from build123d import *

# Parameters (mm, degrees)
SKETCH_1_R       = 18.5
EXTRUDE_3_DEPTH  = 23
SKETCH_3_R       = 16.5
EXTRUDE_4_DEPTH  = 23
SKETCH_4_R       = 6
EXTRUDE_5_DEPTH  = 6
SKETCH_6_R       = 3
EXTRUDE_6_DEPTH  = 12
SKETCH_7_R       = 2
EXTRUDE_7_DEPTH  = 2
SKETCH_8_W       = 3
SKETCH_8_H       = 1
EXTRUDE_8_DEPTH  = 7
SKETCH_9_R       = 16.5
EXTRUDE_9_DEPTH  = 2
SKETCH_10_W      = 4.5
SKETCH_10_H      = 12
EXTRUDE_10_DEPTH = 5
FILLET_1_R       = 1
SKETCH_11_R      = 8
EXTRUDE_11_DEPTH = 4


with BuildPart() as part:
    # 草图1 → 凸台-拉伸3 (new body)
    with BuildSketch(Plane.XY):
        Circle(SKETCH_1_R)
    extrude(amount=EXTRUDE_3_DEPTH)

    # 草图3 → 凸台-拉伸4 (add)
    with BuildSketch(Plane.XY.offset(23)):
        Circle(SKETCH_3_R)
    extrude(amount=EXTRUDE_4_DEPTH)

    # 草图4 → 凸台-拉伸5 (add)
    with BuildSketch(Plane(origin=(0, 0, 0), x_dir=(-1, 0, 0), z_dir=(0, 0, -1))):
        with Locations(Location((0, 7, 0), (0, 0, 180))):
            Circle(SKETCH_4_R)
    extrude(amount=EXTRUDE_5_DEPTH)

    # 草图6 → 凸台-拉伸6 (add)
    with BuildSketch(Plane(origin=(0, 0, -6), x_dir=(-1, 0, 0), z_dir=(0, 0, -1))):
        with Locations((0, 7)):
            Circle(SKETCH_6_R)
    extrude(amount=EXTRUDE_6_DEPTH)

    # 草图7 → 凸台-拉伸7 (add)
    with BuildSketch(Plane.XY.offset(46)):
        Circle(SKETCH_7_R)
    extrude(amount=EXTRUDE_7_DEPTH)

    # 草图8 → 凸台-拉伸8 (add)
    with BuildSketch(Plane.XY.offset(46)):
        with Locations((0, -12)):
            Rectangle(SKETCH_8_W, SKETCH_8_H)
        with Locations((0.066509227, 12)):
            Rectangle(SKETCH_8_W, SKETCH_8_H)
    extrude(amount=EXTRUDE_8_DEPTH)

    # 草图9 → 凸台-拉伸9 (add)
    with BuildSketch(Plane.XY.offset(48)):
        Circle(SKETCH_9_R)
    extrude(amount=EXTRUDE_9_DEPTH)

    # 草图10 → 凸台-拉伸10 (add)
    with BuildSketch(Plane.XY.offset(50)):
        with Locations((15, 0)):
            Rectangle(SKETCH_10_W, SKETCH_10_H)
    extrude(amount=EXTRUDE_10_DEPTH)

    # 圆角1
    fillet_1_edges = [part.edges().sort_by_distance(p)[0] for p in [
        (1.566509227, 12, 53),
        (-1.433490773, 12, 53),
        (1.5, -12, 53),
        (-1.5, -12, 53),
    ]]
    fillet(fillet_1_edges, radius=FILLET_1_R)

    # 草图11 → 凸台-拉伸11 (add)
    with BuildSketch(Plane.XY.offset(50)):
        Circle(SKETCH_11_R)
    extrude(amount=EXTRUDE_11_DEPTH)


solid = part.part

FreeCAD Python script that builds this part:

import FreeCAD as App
import Part
import Sketcher


def edges_at(feature, points):
    """Names of the edges that pass closest to the given points."""
    edges = feature.Shape.Edges
    near = lambda p: min(range(len(edges)), key=lambda i: edges[i].distToShape(Part.Vertex(*p))[0])
    return sorted({f"Edge{near(p) + 1}" for p in points})

doc = App.newDocument("Part")
body = doc.addObject("PartDesign::Body", "Body")

# Sketch on XY plane
sketch1 = doc.addObject("Sketcher::SketchObject", "Sketch")
body.addObject(sketch1)
sketch1.AttachmentSupport = (doc.XY_Plane, [""])
sketch1.MapMode = "FlatFace"
sketch1.addGeometry(Part.Circle(App.Vector(0, 0, 0), App.Vector(0, 0, 1), 18), False)
sketch1.addConstraint([
    Sketcher.Constraint("Coincident", 0, 3, -1, 1),
    Sketcher.Constraint("Diameter", 0, 37.0),
])
pad1 = doc.addObject("PartDesign::Pad", "Pad")
body.addObject(pad1)
pad1.Profile = sketch1
pad1.Length = 23

# Sketch on XY plane
sketch2 = doc.addObject("Sketcher::SketchObject", "Sketch001")
body.addObject(sketch2)
sketch2.AttachmentSupport = (doc.XY_Plane, [""])
sketch2.MapMode = "FlatFace"
sketch2.AttachmentOffset = App.Placement(App.Vector(0, 0, 23), App.Rotation())
sketch2.addGeometry(Part.Circle(App.Vector(0, 0, 0), App.Vector(0, 0, 1), 16), False)
sketch2.addConstraint([
    Sketcher.Constraint("Coincident", 0, 3, -1, 1),
    Sketcher.Constraint("Diameter", 0, 33.0),
])
pad2 = doc.addObject("PartDesign::Pad", "Pad001")
body.addObject(pad2)
pad2.Profile = sketch2
pad2.Length = 23

# Sketch on XY plane
sketch3 = doc.addObject("Sketcher::SketchObject", "Sketch002")
body.addObject(sketch3)
sketch3.AttachmentSupport = (doc.XY_Plane, [""])
sketch3.MapMode = "FlatFace"
sketch3.addGeometry(Part.Circle(App.Vector(0, 7, 0), App.Vector(0, 0, 1), 6), False)
sketch3.addConstraint([
    Sketcher.Constraint("PointOnObject", 0, 3, -2),
    Sketcher.Constraint("Diameter", 0, 12.0),
    Sketcher.Constraint("DistanceY", -1, 1, 0, 3, 7.0),
])
pad3 = doc.addObject("PartDesign::Pad", "Pad002")
body.addObject(pad3)
pad3.Profile = sketch3
pad3.Length = 6
pad3.Reversed = True

# Sketch on XY plane
sketch4 = doc.addObject("Sketcher::SketchObject", "Sketch003")
body.addObject(sketch4)
sketch4.AttachmentSupport = (doc.XY_Plane, [""])
sketch4.MapMode = "FlatFace"
sketch4.AttachmentOffset = App.Placement(App.Vector(0, 0, -6), App.Rotation())
sketch4.addGeometry(Part.Circle(App.Vector(0, 7, 0), App.Vector(0, 0, 1), 3), False)
sketch4.addConstraint([
    Sketcher.Constraint("PointOnObject", 0, 3, -2),
    Sketcher.Constraint("Diameter", 0, 6.0),
    Sketcher.Constraint("DistanceY", -1, 1, 0, 3, 7.0),
])
pad4 = doc.addObject("PartDesign::Pad", "Pad003")
body.addObject(pad4)
pad4.Profile = sketch4
pad4.Length = 12
pad4.Reversed = True

# Sketch on XY plane
sketch5 = doc.addObject("Sketcher::SketchObject", "Sketch004")
body.addObject(sketch5)
sketch5.AttachmentSupport = (doc.XY_Plane, [""])
sketch5.MapMode = "FlatFace"
sketch5.AttachmentOffset = App.Placement(App.Vector(0, 0, 46), App.Rotation())
sketch5.addGeometry(Part.Circle(App.Vector(0, 0, 0), App.Vector(0, 0, 1), 2), False)
sketch5.addConstraint([
    Sketcher.Constraint("Coincident", 0, 3, -1, 1),
    Sketcher.Constraint("Diameter", 0, 4.0),
])
pad5 = doc.addObject("PartDesign::Pad", "Pad004")
body.addObject(pad5)
pad5.Profile = sketch5
pad5.Length = 2

# Sketch on XY plane
sketch6 = doc.addObject("Sketcher::SketchObject", "Sketch005")
body.addObject(sketch6)
sketch6.AttachmentSupport = (doc.XY_Plane, [""])
sketch6.MapMode = "FlatFace"
sketch6.AttachmentOffset = App.Placement(App.Vector(0, 0, 46), App.Rotation())
sketch6.addGeometry([
    Part.LineSegment(App.Vector(-1.5, -11.5, 0), App.Vector(-1.5, -12.5, 0)),  # 0
    Part.LineSegment(App.Vector(-1.5, -12.5, 0), App.Vector(1.5, -12.5, 0)),  # 1
    Part.LineSegment(App.Vector(1.5, -12.5, 0), App.Vector(1.5, -11.5, 0)),  # 2
    Part.LineSegment(App.Vector(1.5, -11.5, 0), App.Vector(-1.5, -11.5, 0)),  # 3
    Part.LineSegment(App.Vector(-1.4, 12.5, 0), App.Vector(-1.4, 11.5, 0)),  # 4
    Part.LineSegment(App.Vector(-1.4, 11.5, 0), App.Vector(1.6, 11.5, 0)),  # 5
    Part.LineSegment(App.Vector(1.6, 11.5, 0), App.Vector(1.6, 12.5, 0)),  # 6
    Part.LineSegment(App.Vector(1.6, 12.5, 0), App.Vector(-1.4, 12.5, 0)),  # 7
], False)
sketch6.addConstraint([
    Sketcher.Constraint("Coincident", 0, 2, 1, 1),
    Sketcher.Constraint("Coincident", 1, 2, 2, 1),
    Sketcher.Constraint("Coincident", 2, 2, 3, 1),
    Sketcher.Constraint("Coincident", 3, 2, 0, 1),
    Sketcher.Constraint("Coincident", 4, 2, 5, 1),
    Sketcher.Constraint("Coincident", 5, 2, 6, 1),
    Sketcher.Constraint("Coincident", 6, 2, 7, 1),
    Sketcher.Constraint("Coincident", 7, 2, 4, 1),
    Sketcher.Constraint("Vertical", 0),
    Sketcher.Constraint("Horizontal", 1),
    Sketcher.Constraint("Vertical", 2),
    Sketcher.Constraint("Horizontal", 3),
    Sketcher.Constraint("Vertical", 4),
    Sketcher.Constraint("Horizontal", 5),
    Sketcher.Constraint("Vertical", 6),
    Sketcher.Constraint("Horizontal", 7),
    Sketcher.Constraint("Equal", 3, 5),
    Sketcher.Constraint("Equal", 2, 4),
    Sketcher.Constraint("DistanceX", 1, 1, 1, 2, 3.0),
    Sketcher.Constraint("DistanceY", 0, 2, 0, 1, 1.0),
    Sketcher.Constraint("DistanceY", 3, 2, 4, 2, 23.0),
    Sketcher.Constraint("DistanceX", 0, 2, -1, 1, 1.5),
    Sketcher.Constraint("DistanceY", 0, 2, -1, 1, 12.5),
    Sketcher.Constraint("DistanceX", 4, 2, -1, 1, 1.433491),
])
pad6 = doc.addObject("PartDesign::Pad", "Pad005")
body.addObject(pad6)
pad6.Profile = sketch6
pad6.Length = 7

# Sketch on XY plane
sketch7 = doc.addObject("Sketcher::SketchObject", "Sketch006")
body.addObject(sketch7)
sketch7.AttachmentSupport = (doc.XY_Plane, [""])
sketch7.MapMode = "FlatFace"
sketch7.AttachmentOffset = App.Placement(App.Vector(0, 0, 48), App.Rotation())
sketch7.addGeometry(Part.Circle(App.Vector(0, 0, 0), App.Vector(0, 0, 1), 16), False)
sketch7.addConstraint([
    Sketcher.Constraint("Coincident", 0, 3, -1, 1),
    Sketcher.Constraint("Diameter", 0, 33.0),
])
pad7 = doc.addObject("PartDesign::Pad", "Pad006")
body.addObject(pad7)
pad7.Profile = sketch7
pad7.Length = 2

# Sketch on XY plane
sketch8 = doc.addObject("Sketcher::SketchObject", "Sketch007")
body.addObject(sketch8)
sketch8.AttachmentSupport = (doc.XY_Plane, [""])
sketch8.MapMode = "FlatFace"
sketch8.AttachmentOffset = App.Placement(App.Vector(0, 0, 50), App.Rotation())
sketch8.addGeometry([
    Part.LineSegment(App.Vector(12.8, 6, 0), App.Vector(12.8, -6, 0)),
    Part.LineSegment(App.Vector(12.8, -6, 0), App.Vector(17.2, -6, 0)),
    Part.LineSegment(App.Vector(17.2, -6, 0), App.Vector(17.2, 6, 0)),
    Part.LineSegment(App.Vector(17.2, 6, 0), App.Vector(12.8, 6, 0)),
], False)
sketch8.addConstraint([
    Sketcher.Constraint("Coincident", 0, 2, 1, 1),
    Sketcher.Constraint("Coincident", 1, 2, 2, 1),
    Sketcher.Constraint("Coincident", 2, 2, 3, 1),
    Sketcher.Constraint("Coincident", 3, 2, 0, 1),
    Sketcher.Constraint("Vertical", 0),
    Sketcher.Constraint("Horizontal", 1),
    Sketcher.Constraint("Vertical", 2),
    Sketcher.Constraint("Horizontal", 3),
    Sketcher.Constraint("DistanceY", 0, 2, 0, 1, 12.0),
    Sketcher.Constraint("DistanceX", 1, 1, 1, 2, 4.5),
    Sketcher.Constraint("DistanceY", 0, 2, -1, 1, 6.0),
    Sketcher.Constraint("DistanceX", -1, 1, 0, 2, 12.75),
])
pad8 = doc.addObject("PartDesign::Pad", "Pad007")
body.addObject(pad8)
pad8.Profile = sketch8
pad8.Length = 5
doc.recompute()

fillet = doc.addObject("PartDesign::Fillet", "Fillet")
body.addObject(fillet)
fillet.Base = (pad8, edges_at(pad8, [
    (1.567, 12, 53),
    (-1.433, 12, 53),
    (1.5, -12, 53),
    (-1.5, -12, 53),
]))
fillet.Radius = 1

# Sketch on XY plane
sketch9 = doc.addObject("Sketcher::SketchObject", "Sketch008")
body.addObject(sketch9)
sketch9.AttachmentSupport = (doc.XY_Plane, [""])
sketch9.MapMode = "FlatFace"
sketch9.AttachmentOffset = App.Placement(App.Vector(0, 0, 50), App.Rotation())
sketch9.addGeometry(Part.Circle(App.Vector(0, 0, 0), App.Vector(0, 0, 1), 8), False)
sketch9.addConstraint([
    Sketcher.Constraint("Coincident", 0, 3, -1, 1),
    Sketcher.Constraint("Diameter", 0, 16.0),
])
pad9 = doc.addObject("PartDesign::Pad", "Pad008")
body.addObject(pad9)
pad9.Profile = sketch9
pad9.Length = 4

doc.recompute()
